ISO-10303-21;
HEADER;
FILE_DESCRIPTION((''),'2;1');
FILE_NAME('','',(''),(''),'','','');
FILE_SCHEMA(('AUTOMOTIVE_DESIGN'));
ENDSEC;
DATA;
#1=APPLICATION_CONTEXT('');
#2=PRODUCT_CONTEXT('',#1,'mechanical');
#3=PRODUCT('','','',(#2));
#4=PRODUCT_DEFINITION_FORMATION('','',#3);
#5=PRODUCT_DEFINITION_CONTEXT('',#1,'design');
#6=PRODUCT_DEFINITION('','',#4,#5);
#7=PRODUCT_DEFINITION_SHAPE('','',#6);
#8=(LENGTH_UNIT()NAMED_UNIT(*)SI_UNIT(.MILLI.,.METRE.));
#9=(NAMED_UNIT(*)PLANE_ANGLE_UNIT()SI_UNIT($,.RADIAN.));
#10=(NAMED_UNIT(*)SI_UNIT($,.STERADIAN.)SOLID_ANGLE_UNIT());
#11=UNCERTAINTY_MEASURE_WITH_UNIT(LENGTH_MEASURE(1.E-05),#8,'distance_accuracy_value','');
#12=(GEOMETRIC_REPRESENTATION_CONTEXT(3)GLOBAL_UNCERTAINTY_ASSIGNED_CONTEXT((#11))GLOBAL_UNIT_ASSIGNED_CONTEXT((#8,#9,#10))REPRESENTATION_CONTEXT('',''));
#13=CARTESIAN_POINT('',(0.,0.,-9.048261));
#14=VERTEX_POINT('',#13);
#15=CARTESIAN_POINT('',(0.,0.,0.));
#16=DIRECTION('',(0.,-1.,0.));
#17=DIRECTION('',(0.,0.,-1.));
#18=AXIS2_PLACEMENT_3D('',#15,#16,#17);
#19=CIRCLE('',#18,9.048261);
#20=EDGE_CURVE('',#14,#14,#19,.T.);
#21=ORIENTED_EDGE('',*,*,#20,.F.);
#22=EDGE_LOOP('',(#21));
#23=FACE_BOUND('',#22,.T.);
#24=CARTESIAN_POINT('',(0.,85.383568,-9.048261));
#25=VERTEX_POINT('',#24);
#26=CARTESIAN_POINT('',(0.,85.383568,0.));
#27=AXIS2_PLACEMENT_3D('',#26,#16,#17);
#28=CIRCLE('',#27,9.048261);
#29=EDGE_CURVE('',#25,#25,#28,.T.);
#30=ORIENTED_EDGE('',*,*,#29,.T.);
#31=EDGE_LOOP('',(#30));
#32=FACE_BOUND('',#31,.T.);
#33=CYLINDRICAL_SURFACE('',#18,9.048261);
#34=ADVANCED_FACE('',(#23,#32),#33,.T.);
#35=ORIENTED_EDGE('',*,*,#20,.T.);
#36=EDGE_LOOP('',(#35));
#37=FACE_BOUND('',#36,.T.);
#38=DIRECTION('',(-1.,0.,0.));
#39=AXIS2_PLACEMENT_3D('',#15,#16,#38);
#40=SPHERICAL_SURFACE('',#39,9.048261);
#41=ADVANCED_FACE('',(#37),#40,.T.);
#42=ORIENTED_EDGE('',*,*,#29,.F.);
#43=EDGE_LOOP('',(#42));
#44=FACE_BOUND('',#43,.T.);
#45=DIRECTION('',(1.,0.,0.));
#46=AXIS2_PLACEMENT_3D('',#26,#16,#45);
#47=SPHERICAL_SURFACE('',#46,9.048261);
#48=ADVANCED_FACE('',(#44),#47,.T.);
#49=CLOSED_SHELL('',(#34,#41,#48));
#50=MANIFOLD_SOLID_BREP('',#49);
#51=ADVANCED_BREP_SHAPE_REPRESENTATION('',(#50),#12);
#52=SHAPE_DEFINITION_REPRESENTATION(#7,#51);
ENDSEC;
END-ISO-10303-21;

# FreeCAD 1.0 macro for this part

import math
import FreeCAD as App
import Part
import Sketcher

V = App.Vector

doc = App.newDocument("Part")
params = doc.addObject("Spreadsheet::Sheet", "Params")
for row, (alias, value) in enumerate([
    ("revolution_angle", "360 deg"),
], start=1):
    params.set(f"A{row}", alias)
    params.set(f"B{row}", "=" + value)
    params.setAlias(f"B{row}", alias)

body = doc.addObject("PartDesign::Body", "Body")

# Sketch on XY plane
sketch1 = body.newObject("Sketcher::SketchObject", "Sketch")
sketch1.AttachmentSupport = (doc.getObject("XY_Plane"), [""])
sketch1.MapMode = "FlatFace"
sketch1.addGeometry(Part.LineSegment(V(9, 0, 0), V(9, 85, 0)), False)
sketch1.addGeometry(Part.ArcOfCircle(Part.Circle(V(0, 85, 0), V(0, 0, 1), 9), math.radians(0), math.radians(90)), False)
sketch1.addGeometry(Part.LineSegment(V(0, 94, 0), V(0, -9, 0)), False)
sketch1.addGeometry(Part.ArcOfCircle(Part.Circle(V(0, 0, 0), V(0, 0, 1), 9), math.radians(-90), math.radians(0)), False)
sketch1.addConstraint(Sketcher.Constraint("Tangent", 0, 2, 1, 1))
sketch1.addConstraint(Sketcher.Constraint("Coincident", 1, 2, 2, 1))
sketch1.addConstraint(Sketcher.Constraint("Coincident", 2, 2, 3, 1))
sketch1.addConstraint(Sketcher.Constraint("Tangent", 3, 2, 0, 1))
sketch1.addConstraint(Sketcher.Constraint("Vertical", 0))
sketch1.addConstraint(Sketcher.Constraint("Vertical", 2))
sketch1.addConstraint(Sketcher.Constraint("Coincident", 3, 3, -1, 1))
sketch1.addConstraint(Sketcher.Constraint("Equal", 1, 3))
sketch1.addConstraint(Sketcher.Constraint("PointOnObject", 1, 2, -2))
sketch1.addConstraint(Sketcher.Constraint("Radius", 1, 9.048261))
sketch1.addConstraint(Sketcher.Constraint("DistanceY", 2, 2, 2, 1, 103.480091))
revolution = body.newObject("PartDesign::Revolution", "Revolution")
revolution.Profile = sketch1
revolution.ReferenceAxis = (sketch1, ["V_Axis"])
revolution.setExpression("Angle", "Params.revolution_angle")

doc.recompute()
